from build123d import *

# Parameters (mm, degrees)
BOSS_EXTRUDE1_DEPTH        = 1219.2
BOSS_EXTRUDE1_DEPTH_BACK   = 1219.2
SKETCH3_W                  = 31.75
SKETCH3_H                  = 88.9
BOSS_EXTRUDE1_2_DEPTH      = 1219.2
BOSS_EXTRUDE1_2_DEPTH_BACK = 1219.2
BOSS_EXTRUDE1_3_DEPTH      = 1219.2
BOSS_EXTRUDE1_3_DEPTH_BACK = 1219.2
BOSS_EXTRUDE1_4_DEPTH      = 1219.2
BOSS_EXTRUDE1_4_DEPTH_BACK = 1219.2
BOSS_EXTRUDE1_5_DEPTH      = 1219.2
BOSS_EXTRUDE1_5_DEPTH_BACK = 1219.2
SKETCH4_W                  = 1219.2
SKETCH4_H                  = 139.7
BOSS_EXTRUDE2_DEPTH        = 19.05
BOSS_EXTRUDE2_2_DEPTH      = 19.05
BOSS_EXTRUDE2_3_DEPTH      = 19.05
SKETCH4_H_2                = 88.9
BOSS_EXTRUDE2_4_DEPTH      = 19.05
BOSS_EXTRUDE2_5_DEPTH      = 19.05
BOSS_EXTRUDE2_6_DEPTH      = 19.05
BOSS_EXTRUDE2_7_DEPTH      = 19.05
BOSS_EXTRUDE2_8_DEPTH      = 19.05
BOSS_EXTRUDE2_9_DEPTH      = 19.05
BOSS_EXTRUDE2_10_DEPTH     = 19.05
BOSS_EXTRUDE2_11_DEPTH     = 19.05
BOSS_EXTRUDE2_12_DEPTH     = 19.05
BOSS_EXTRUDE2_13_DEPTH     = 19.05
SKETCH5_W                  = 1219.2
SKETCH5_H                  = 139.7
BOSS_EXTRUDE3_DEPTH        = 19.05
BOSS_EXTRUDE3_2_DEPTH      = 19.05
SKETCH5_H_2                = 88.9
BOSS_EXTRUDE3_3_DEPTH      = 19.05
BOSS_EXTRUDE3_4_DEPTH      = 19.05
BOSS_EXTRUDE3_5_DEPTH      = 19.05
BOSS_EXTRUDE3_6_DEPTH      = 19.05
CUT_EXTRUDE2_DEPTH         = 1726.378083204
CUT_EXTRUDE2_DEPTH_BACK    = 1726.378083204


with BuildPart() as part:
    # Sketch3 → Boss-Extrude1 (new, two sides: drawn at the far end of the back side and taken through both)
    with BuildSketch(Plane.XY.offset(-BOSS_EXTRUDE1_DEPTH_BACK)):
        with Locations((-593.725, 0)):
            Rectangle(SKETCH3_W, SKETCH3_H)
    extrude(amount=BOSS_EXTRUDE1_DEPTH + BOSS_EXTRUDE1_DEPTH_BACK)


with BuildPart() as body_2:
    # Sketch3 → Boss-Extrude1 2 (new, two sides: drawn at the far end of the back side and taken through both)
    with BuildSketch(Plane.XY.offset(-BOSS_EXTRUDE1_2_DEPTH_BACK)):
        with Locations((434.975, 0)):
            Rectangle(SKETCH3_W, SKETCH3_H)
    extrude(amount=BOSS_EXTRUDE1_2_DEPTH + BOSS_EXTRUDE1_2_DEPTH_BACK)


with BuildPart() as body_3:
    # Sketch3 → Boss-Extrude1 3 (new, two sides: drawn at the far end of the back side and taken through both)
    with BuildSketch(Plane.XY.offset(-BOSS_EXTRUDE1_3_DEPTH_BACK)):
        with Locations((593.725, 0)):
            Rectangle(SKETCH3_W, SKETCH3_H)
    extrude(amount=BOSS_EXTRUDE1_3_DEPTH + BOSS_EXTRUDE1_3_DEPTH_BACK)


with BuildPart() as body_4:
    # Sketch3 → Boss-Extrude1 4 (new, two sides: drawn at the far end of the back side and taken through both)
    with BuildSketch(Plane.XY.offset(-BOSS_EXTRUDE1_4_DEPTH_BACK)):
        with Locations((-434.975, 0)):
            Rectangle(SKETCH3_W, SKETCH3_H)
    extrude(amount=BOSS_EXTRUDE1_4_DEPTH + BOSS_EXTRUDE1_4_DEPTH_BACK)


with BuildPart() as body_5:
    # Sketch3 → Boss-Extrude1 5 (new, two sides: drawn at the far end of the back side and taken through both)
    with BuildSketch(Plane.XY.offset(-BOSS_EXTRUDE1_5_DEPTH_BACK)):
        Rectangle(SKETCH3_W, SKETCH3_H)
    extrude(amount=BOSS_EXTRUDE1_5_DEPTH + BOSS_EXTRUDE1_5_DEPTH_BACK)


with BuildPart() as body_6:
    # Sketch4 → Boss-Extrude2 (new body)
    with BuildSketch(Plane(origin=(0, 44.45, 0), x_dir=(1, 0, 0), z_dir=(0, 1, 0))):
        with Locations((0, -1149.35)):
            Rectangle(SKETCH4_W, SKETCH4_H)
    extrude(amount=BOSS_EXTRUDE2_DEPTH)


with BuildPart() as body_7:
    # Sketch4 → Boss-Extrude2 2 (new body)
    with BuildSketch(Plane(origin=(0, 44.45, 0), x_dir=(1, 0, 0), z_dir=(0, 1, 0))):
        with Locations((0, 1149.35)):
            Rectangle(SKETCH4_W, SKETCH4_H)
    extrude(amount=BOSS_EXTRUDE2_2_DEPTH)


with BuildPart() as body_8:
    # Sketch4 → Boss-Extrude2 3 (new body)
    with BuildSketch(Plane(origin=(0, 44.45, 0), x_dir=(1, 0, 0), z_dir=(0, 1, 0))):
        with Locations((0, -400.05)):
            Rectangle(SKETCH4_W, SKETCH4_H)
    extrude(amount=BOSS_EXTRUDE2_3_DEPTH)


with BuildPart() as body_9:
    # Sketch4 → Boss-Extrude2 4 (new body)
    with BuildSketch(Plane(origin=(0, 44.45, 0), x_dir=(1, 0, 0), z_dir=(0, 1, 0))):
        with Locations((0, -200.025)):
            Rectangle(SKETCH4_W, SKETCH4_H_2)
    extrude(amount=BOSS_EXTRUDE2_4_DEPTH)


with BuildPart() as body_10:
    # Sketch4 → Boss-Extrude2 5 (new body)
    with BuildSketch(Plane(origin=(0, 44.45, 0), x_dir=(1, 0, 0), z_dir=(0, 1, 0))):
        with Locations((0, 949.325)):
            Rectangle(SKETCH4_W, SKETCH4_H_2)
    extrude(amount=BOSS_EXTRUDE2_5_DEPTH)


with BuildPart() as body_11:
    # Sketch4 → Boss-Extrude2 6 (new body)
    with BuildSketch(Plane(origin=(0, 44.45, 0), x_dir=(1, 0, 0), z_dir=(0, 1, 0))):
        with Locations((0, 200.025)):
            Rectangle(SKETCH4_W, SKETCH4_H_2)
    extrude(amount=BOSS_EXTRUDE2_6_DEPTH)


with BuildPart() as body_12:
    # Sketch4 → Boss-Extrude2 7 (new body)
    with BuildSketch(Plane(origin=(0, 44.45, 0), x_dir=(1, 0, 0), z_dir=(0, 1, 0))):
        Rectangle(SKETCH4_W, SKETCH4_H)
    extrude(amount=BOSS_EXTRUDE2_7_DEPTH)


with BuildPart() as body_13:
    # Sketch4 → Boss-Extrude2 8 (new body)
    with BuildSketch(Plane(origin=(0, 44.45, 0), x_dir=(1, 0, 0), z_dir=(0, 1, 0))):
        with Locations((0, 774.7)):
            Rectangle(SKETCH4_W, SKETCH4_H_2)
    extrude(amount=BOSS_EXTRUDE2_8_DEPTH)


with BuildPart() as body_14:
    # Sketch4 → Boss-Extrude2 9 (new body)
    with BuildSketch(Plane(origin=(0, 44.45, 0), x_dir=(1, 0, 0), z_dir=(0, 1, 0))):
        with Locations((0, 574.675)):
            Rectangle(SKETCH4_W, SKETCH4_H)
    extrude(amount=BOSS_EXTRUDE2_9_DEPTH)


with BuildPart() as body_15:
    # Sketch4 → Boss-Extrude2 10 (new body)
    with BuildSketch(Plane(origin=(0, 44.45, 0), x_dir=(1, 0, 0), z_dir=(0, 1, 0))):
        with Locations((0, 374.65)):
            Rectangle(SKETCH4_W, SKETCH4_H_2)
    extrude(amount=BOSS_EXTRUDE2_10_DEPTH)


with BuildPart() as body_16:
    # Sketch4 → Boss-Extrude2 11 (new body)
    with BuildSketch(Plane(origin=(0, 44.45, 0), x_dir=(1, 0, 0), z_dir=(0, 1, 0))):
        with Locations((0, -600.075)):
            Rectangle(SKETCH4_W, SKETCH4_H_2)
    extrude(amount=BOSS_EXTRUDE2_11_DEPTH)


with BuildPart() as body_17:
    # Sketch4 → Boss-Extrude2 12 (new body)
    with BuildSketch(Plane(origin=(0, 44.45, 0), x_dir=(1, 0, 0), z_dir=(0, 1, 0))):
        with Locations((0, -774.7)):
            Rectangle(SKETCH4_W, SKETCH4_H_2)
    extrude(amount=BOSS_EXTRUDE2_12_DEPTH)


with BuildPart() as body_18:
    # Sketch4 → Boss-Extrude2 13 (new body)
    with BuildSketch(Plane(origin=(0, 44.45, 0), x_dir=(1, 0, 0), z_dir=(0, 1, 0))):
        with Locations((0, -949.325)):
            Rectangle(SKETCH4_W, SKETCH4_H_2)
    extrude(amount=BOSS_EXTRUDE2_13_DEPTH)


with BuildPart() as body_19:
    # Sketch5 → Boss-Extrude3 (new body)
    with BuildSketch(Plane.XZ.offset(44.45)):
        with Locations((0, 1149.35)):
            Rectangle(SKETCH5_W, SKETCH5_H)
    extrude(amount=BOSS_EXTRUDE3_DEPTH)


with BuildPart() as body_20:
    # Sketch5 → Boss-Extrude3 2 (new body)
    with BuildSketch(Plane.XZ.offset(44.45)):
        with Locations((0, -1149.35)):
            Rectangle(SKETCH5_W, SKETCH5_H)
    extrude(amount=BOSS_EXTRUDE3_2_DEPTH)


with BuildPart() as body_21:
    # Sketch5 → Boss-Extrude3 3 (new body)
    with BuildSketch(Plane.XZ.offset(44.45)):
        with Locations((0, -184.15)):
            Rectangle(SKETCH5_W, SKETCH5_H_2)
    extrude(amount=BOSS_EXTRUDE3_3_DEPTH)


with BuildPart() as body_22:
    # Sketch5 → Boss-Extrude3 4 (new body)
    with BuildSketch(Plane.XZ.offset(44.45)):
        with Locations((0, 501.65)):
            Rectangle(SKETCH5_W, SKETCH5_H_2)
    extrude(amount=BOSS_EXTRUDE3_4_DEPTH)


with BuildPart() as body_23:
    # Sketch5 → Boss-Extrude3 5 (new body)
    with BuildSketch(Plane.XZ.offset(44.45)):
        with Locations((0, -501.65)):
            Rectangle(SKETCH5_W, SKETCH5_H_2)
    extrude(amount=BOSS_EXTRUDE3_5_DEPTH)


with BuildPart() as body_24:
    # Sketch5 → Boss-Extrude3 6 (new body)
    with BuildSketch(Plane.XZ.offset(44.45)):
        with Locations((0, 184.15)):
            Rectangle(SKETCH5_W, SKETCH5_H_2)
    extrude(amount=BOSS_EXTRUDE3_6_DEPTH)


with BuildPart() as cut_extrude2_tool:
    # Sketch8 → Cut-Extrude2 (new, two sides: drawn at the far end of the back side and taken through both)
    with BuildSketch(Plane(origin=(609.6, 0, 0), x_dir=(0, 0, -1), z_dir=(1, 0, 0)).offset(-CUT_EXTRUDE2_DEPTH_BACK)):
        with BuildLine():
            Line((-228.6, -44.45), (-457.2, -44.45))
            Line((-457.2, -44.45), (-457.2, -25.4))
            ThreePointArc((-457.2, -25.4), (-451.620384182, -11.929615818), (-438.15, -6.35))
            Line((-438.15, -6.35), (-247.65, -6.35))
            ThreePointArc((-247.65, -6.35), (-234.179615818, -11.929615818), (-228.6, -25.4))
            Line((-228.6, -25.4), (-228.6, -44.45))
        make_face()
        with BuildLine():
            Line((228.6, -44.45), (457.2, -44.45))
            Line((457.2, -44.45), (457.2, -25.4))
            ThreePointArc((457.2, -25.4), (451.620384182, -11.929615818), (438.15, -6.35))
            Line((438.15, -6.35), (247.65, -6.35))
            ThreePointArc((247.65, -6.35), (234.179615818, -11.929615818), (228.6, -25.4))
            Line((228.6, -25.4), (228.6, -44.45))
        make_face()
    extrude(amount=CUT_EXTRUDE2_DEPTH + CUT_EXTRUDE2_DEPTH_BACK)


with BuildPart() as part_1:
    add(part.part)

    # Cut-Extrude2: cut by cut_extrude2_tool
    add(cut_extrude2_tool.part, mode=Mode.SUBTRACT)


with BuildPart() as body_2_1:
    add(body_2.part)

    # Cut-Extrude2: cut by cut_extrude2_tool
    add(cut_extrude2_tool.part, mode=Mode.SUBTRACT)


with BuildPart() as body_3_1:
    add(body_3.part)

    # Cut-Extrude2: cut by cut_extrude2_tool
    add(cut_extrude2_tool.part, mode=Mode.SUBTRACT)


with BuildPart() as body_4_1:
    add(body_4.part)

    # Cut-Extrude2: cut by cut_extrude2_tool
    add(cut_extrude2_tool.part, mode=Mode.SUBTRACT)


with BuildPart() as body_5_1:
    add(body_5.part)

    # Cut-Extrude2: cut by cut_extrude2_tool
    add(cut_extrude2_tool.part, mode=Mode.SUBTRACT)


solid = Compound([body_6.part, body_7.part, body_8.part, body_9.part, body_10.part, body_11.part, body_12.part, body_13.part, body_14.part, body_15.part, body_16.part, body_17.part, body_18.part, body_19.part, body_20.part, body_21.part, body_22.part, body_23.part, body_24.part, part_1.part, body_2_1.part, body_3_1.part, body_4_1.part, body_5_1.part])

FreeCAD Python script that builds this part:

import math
import FreeCAD as App
import Part
import Sketcher

V = App.Vector
Q = App.Units.Quantity

doc = App.newDocument("Part")
body = doc.addObject("PartDesign::Body", "Body")

sketch1 = body.newObject("Sketcher::SketchObject", "Sketch")
sketch1.AttachmentSupport = (doc.getObject("XY_Plane"), [""])
sketch1.MapMode = "FlatFace"
sketch1.addGeometry(Part.LineSegment(V(-610, 44, 0), V(-610, -44, 0)), False)
sketch1.addGeometry(Part.LineSegment(V(-610, -44, 0), V(-578, -44, 0)), False)
sketch1.addGeometry(Part.LineSegment(V(-578, -44, 0), V(-578, 44, 0)), False)
sketch1.addGeometry(Part.LineSegment(V(-578, 44, 0), V(-610, 44, 0)), False)
sketch1.addConstraint(Sketcher.Constraint("Coincident", 0, 2, 1, 1))
sketch1.addConstraint(Sketcher.Constraint("Coincident", 1, 2, 2, 1))
sketch1.addConstraint(Sketcher.Constraint("Coincident", 2, 2, 3, 1))
sketch1.addConstraint(Sketcher.Constraint("Coincident", 3, 2, 0, 1))
sketch1.addConstraint(Sketcher.Constraint("Vertical", 0))
sketch1.addConstraint(Sketcher.Constraint("Horizontal", 1))
sketch1.addConstraint(Sketcher.Constraint("Vertical", 2))
sketch1.addConstraint(Sketcher.Constraint("Horizontal", 3))
sketch1.addConstraint(Sketcher.Constraint("DistanceY", 0, 2, 0, 1, Q("3.5 in")))
sketch1.addConstraint(Sketcher.Constraint("DistanceX", 0, 2, -1, 1, Q("24 in")))
sketch1.addConstraint(Sketcher.Constraint("DistanceX", 1, 1, 1, 2, Q("1.25 in")))
sketch1.addConstraint(Sketcher.Constraint("DistanceY", 0, 2, -1, 1, Q("1.75 in")))
pad1 = body.newObject("PartDesign::Pad", "Pad")
pad1.Profile = sketch1
pad1.Type = "TwoLengths"
pad1.Length = Q("48 in")
pad1.Length2 = Q("48 in")
body2 = doc.addObject("PartDesign::Body", "Body001")

sketch2 = body2.newObject("Sketcher::SketchObject", "Sketch001")
sketch2.AttachmentSupport = (doc.getObject("XY_Plane001"), [""])
sketch2.MapMode = "FlatFace"
sketch2.addGeometry(Part.LineSegment(V(419, 44, 0), V(419, -44, 0)), False)
sketch2.addGeometry(Part.LineSegment(V(419, -44, 0), V(451, -44, 0)), False)
sketch2.addGeometry(Part.LineSegment(V(451, -44, 0), V(451, 44, 0)), False)
sketch2.addGeometry(Part.LineSegment(V(451, 44, 0), V(419, 44, 0)), False)
sketch2.addConstraint(Sketcher.Constraint("Coincident", 0, 2, 1, 1))
sketch2.addConstraint(Sketcher.Constraint("Coincident", 1, 2, 2, 1))
sketch2.addConstraint(Sketcher.Constraint("Coincident", 2, 2, 3, 1))
sketch2.addConstraint(Sketcher.Constraint("Coincident", 3, 2, 0, 1))
sketch2.addConstraint(Sketcher.Constraint("Vertical", 0))
sketch2.addConstraint(Sketcher.Constraint("Horizontal", 1))
sketch2.addConstraint(Sketcher.Constraint("Vertical", 2))
sketch2.addConstraint(Sketcher.Constraint("Horizontal", 3))
sketch2.addConstraint(Sketcher.Constraint("DistanceY", 0, 2, 0, 1, Q("3.5 in")))
sketch2.addConstraint(Sketcher.Constraint("DistanceX", 1, 1, 1, 2, Q("1.25 in")))
sketch2.addConstraint(Sketcher.Constraint("DistanceX", -1, 1, 0, 2, Q("16.5 in")))
sketch2.addConstraint(Sketcher.Constraint("DistanceY", 0, 2, -1, 1, Q("1.75 in")))
pad2 = body2.newObject("PartDesign::Pad", "Pad001")
pad2.Profile = sketch2
pad2.Type = "TwoLengths"
pad2.Length = Q("48 in")
pad2.Length2 = Q("48 in")
body3 = doc.addObject("PartDesign::Body", "Body002")

sketch3 = body3.newObject("Sketcher::SketchObject", "Sketch002")
sketch3.AttachmentSupport = (doc.getObject("XY_Plane002"), [""])
sketch3.MapMode = "FlatFace"
sketch3.addGeometry(Part.LineSegment(V(578, 44, 0), V(578, -44, 0)), False)
sketch3.addGeometry(Part.LineSegment(V(578, -44, 0), V(610, -44, 0)), False)
sketch3.addGeometry(Part.LineSegment(V(610, -44, 0), V(610, 44, 0)), False)
sketch3.addGeometry(Part.LineSegment(V(610, 44, 0), V(578, 44, 0)), False)
sketch3.addConstraint(Sketcher.Constraint("Coincident", 0, 2, 1, 1))
sketch3.addConstraint(Sketcher.Constraint("Coincident", 1, 2, 2, 1))
sketch3.addConstraint(Sketcher.Constraint("Coincident", 2, 2, 3, 1))
sketch3.addConstraint(Sketcher.Constraint("Coincident", 3, 2, 0, 1))
sketch3.addConstraint(Sketcher.Constraint("Vertical", 0))
sketch3.addConstraint(Sketcher.Constraint("Horizontal", 1))
sketch3.addConstraint(Sketcher.Constraint("Vertical", 2))
sketch3.addConstraint(Sketcher.Constraint("Horizontal", 3))
sketch3.addConstraint(Sketcher.Constraint("DistanceY", 0, 2, 0, 1, Q("3.5 in")))
sketch3.addConstraint(Sketcher.Constraint("DistanceX", -1, 1, 1, 2, Q("24 in")))
sketch3.addConstraint(Sketcher.Constraint("DistanceX", 1, 1, 1, 2, Q("1.25 in")))
sketch3.addConstraint(Sketcher.Constraint("DistanceY", 0, 2, -1, 1, Q("1.75 in")))
pad3 = body3.newObject("PartDesign::Pad", "Pad002")
pad3.Profile = sketch3
pad3.Type = "TwoLengths"
pad3.Length = Q("48 in")
pad3.Length2 = Q("48 in")
body4 = doc.addObject("PartDesign::Body", "Body003")

sketch4 = body4.newObject("Sketcher::SketchObject", "Sketch003")
sketch4.AttachmentSupport = (doc.getObject("XY_Plane003"), [""])
sketch4.MapMode = "FlatFace"
sketch4.addGeometry(Part.LineSegment(V(-451, 44, 0), V(-451, -44, 0)), False)
sketch4.addGeometry(Part.LineSegment(V(-451, -44, 0), V(-419, -44, 0)), False)
sketch4.addGeometry(Part.LineSegment(V(-419, -44, 0), V(-419, 44, 0)), False)
sketch4.addGeometry(Part.LineSegment(V(-419, 44, 0), V(-451, 44, 0)), False)
sketch4.addConstraint(Sketcher.Constraint("Coincident", 0, 2, 1, 1))
sketch4.addConstraint(Sketcher.Constraint("Coincident", 1, 2, 2, 1))
sketch4.addConstraint(Sketcher.Constraint("Coincident", 2, 2, 3, 1))
sketch4.addConstraint(Sketcher.Constraint("Coincident", 3, 2, 0, 1))
sketch4.addConstraint(Sketcher.Constraint("Vertical", 0))
sketch4.addConstraint(Sketcher.Constraint("Horizontal", 1))
sketch4.addConstraint(Sketcher.Constraint("Vertical", 2))
sketch4.addConstraint(Sketcher.Constraint("Horizontal", 3))
sketch4.addConstraint(Sketcher.Constraint("DistanceY", 0, 2, 0, 1, Q("3.5 in")))
sketch4.addConstraint(Sketcher.Constraint("DistanceX", 1, 1, 1, 2, Q("1.25 in")))
sketch4.addConstraint(Sketcher.Constraint("DistanceX", 1, 2, -1, 1, Q("16.5 in")))
sketch4.addConstraint(Sketcher.Constraint("DistanceY", 0, 2, -1, 1, Q("1.75 in")))
pad4 = body4.newObject("PartDesign::Pad", "Pad003")
pad4.Profile = sketch4
pad4.Type = "TwoLengths"
pad4.Length = Q("48 in")
pad4.Length2 = Q("48 in")
body5 = doc.addObject("PartDesign::Body", "Body004")

sketch5 = body5.newObject("Sketcher::SketchObject", "Sketch004")
sketch5.AttachmentSupport = (doc.getObject("XY_Plane004"), [""])
sketch5.MapMode = "FlatFace"
sketch5.addGeometry(Part.LineSegment(V(-16, 44, 0), V(-16, -44, 0)), False)
sketch5.addGeometry(Part.LineSegment(V(-16, -44, 0), V(16, -44, 0)), False)
sketch5.addGeometry(Part.LineSegment(V(16, -44, 0), V(16, 44, 0)), False)
sketch5.addGeometry(Part.LineSegment(V(16, 44, 0), V(-16, 44, 0)), False)
sketch5.addConstraint(Sketcher.Constraint("Coincident", 0, 2, 1, 1))
sketch5.addConstraint(Sketcher.Constraint("Coincident", 1, 2, 2, 1))
sketch5.addConstraint(Sketcher.Constraint("Coincident", 2, 2, 3, 1))
sketch5.addConstraint(Sketcher.Constraint("Coincident", 3, 2, 0, 1))
sketch5.addConstraint(Sketcher.Constraint("Vertical", 0))
sketch5.addConstraint(Sketcher.Constraint("Horizontal", 1))
sketch5.addConstraint(Sketcher.Constraint("Vertical", 2))
sketch5.addConstraint(Sketcher.Constraint("Horizontal", 3))
sketch5.addConstraint(Sketcher.Constraint("Symmetric", 0, 2, 2, 2, -1, 1))
sketch5.addConstraint(Sketcher.Constraint("DistanceY", 0, 2, 0, 1, Q("3.5 in")))
sketch5.addConstraint(Sketcher.Constraint("DistanceX", 1, 1, 1, 2, Q("1.25 in")))
pad5 = body5.newObject("PartDesign::Pad", "Pad004")
pad5.Profile = sketch5
pad5.Type = "TwoLengths"
pad5.Length = Q("48 in")
pad5.Length2 = Q("48 in")
body6 = doc.addObject("PartDesign::Body", "Body005")

sketch6 = body6.newObject("Sketcher::SketchObject", "Sketch005")
sketch6.AttachmentSupport = (doc.getObject("XZ_Plane005"), [""])
sketch6.MapMode = "FlatFace"
sketch6.AttachmentOffset = App.Placement(V(0, 0, -1.75 * 25.4), App.Rotation())
sketch6.addGeometry(Part.LineSegment(V(-610, 1080, 0), V(-610, 1219, 0)), False)
sketch6.addGeometry(Part.LineSegment(V(-610, 1219, 0), V(610, 1219, 0)), False)
sketch6.addGeometry(Part.LineSegment(V(610, 1219, 0), V(610, 1080, 0)), False)
sketch6.addGeometry(Part.LineSegment(V(610, 1080, 0), V(-610, 1080, 0)), False)
sketch6.addConstraint(Sketcher.Constraint("Coincident", 0, 2, 1, 1))
sketch6.addConstraint(Sketcher.Constraint("Coincident", 1, 2, 2, 1))
sketch6.addConstraint(Sketcher.Constraint("Coincident", 2, 2, 3, 1))
sketch6.addConstraint(Sketcher.Constraint("Coincident", 3, 2, 0, 1))
sketch6.addConstraint(Sketcher.Constraint("Vertical", 0))
sketch6.addConstraint(Sketcher.Constraint("Horizontal", 1))
sketch6.addConstraint(Sketcher.Constraint("Vertical", 2))
sketch6.addConstraint(Sketcher.Constraint("Horizontal", 3))
sketch6.addConstraint(Sketcher.Constraint("DistanceX", 1, 1, 1, 2, Q("48 in")))
sketch6.addConstraint(Sketcher.Constraint("DistanceY", 0, 1, 0, 2, Q("5.5 in")))
sketch6.addConstraint(Sketcher.Constraint("DistanceX", 0, 2, -1, 1, Q("24 in")))
sketch6.addConstraint(Sketcher.Constraint("DistanceY", -1, 1, 0, 2, Q("48 in")))
pad6 = body6.newObject("PartDesign::Pad", "Pad005")
pad6.Profile = sketch6
pad6.Length = Q("0.75 in")
pad6.Reversed = True
body7 = doc.addObject("PartDesign::Body", "Body006")

sketch7 = body7.newObject("Sketcher::SketchObject", "Sketch006")
sketch7.AttachmentSupport = (doc.getObject("XZ_Plane006"), [""])
sketch7.MapMode = "FlatFace"
sketch7.AttachmentOffset = App.Placement(V(0, 0, -1.75 * 25.4), App.Rotation())
sketch7.addGeometry(Part.LineSegment(V(-610, -1219, 0), V(-610, -1080, 0)), False)
sketch7.addGeometry(Part.LineSegment(V(-610, -1080, 0), V(610, -1080, 0)), False)
sketch7.addGeometry(Part.LineSegment(V(610, -1080, 0), V(610, -1219, 0)), False)
sketch7.addGeometry(Part.LineSegment(V(610, -1219, 0), V(-610, -1219, 0)), False)
sketch7.addConstraint(Sketcher.Constraint("Coincident", 0, 2, 1, 1))
sketch7.addConstraint(Sketcher.Constraint("Coincident", 1, 2, 2, 1))
sketch7.addConstraint(Sketcher.Constraint("Coincident", 2, 2, 3, 1))
sketch7.addConstraint(Sketcher.Constraint("Coincident", 3, 2, 0, 1))
sketch7.addConstraint(Sketcher.Constraint("Vertical", 0))
sketch7.addConstraint(Sketcher.Constraint("Horizontal", 1))
sketch7.addConstraint(Sketcher.Constraint("Vertical", 2))
sketch7.addConstraint(Sketcher.Constraint("Horizontal", 3))
sketch7.addConstraint(Sketcher.Constraint("DistanceX", 1, 1, 1, 2, Q("48 in")))
sketch7.addConstraint(Sketcher.Constraint("DistanceY", 0, 1, 0, 2, Q("5.5 in")))
sketch7.addConstraint(Sketcher.Constraint("DistanceX", 0, 2, -1, 1, Q("24 in")))
sketch7.addConstraint(Sketcher.Constraint("DistanceY", 2, 2, -1, 1, Q("48 in")))
pad7 = body7.newObject("PartDesign::Pad", "Pad006")
pad7.Profile = sketch7
pad7.Length = Q("0.75 in")
pad7.Reversed = True
body8 = doc.addObject("PartDesign::Body", "Body007")

sketch8 = body8.newObject("Sketcher::SketchObject", "Sketch007")
sketch8.AttachmentSupport = (doc.getObject("XZ_Plane007"), [""])
sketch8.MapMode = "FlatFace"
sketch8.AttachmentOffset = App.Placement(V(0, 0, -1.75 * 25.4), App.Rotation())
sketch8.addGeometry(Part.LineSegment(V(-610, 330, 0), V(-610, 470, 0)), False)
sketch8.addGeometry(Part.LineSegment(V(-610, 470, 0), V(610, 470, 0)), False)
sketch8.addGeometry(Part.LineSegment(V(610, 470, 0), V(610, 330, 0)), False)
sketch8.addGeometry(Part.LineSegment(V(610, 330, 0), V(-610, 330, 0)), False)
sketch8.addConstraint(Sketcher.Constraint("Coincident", 0, 2, 1, 1))
sketch8.addConstraint(Sketcher.Constraint("Coincident", 1, 2, 2, 1))
sketch8.addConstraint(Sketcher.Constraint("Coincident", 2, 2, 3, 1))
sketch8.addConstraint(Sketcher.Constraint("Coincident", 3, 2, 0, 1))
sketch8.addConstraint(Sketcher.Constraint("Vertical", 0))
sketch8.addConstraint(Sketcher.Constraint("Horizontal", 1))
sketch8.addConstraint(Sketcher.Constraint("Vertical", 2))
sketch8.addConstraint(Sketcher.Constraint("Horizontal", 3))
sketch8.addConstraint(Sketcher.Constraint("DistanceX", 1, 1, 1, 2, Q("48 in")))
sketch8.addConstraint(Sketcher.Constraint("DistanceY", 0, 1, 0, 2, Q("5.5 in")))
sketch8.addConstraint(Sketcher.Constraint("DistanceX", 0, 2, -1, 1, Q("24 in")))
sketch8.addConstraint(Sketcher.Constraint("DistanceY", -1, 1, 2, 2, Q("13 in")))
pad8 = body8.newObject("PartDesign::Pad", "Pad007")
pad8.Profile = sketch8
pad8.Length = Q("0.75 in")
pad8.Reversed = True
body9 = doc.addObject("PartDesign::Body", "Body008")

sketch9 = body9.newObject("Sketcher::SketchObject", "Sketch008")
sketch9.AttachmentSupport = (doc.getObject("XZ_Plane008"), [""])
sketch9.MapMode = "FlatFace"
sketch9.AttachmentOffset = App.Placement(V(0, 0, -1.75 * 25.4), App.Rotation())
sketch9.addGeometry(Part.LineSegment(V(-610, 156, 0), V(-610, 244, 0)), False)
sketch9.addGeometry(Part.LineSegment(V(-610, 244, 0), V(610, 244, 0)), False)
sketch9.addGeometry(Part.LineSegment(V(610, 244, 0), V(610, 156, 0)), False)
sketch9.addGeometry(Part.LineSegment(V(610, 156, 0), V(-610, 156, 0)), False)
sketch9.addConstraint(Sketcher.Constraint("Coincident", 0, 2, 1, 1))
sketch9.addConstraint(Sketcher.Constraint("Coincident", 1, 2, 2, 1))
sketch9.addConstraint(Sketcher.Constraint("Coincident", 2, 2, 3, 1))
sketch9.addConstraint(Sketcher.Constraint("Coincident", 3, 2, 0, 1))
sketch9.addConstraint(Sketcher.Constraint("Vertical", 0))
sketch9.addConstraint(Sketcher.Constraint("Horizontal", 1))
sketch9.addConstraint(Sketcher.Constraint("Vertical", 2))
sketch9.addConstraint(Sketcher.Constraint("Horizontal", 3))
sketch9.addConstraint(Sketcher.Constraint("DistanceX", 1, 1, 1, 2, Q("48 in")))
sketch9.addConstraint(Sketcher.Constraint("DistanceY", 0, 1, 0, 2, Q("3.5 in")))
sketch9.addConstraint(Sketcher.Constraint("DistanceX", 0, 2, -1, 1, Q("24 in")))
sketch9.addConstraint(Sketcher.Constraint("DistanceY", -1, 1, 0, 2, Q("9.625 in")))
pad9 = body9.newObject("PartDesign::Pad", "Pad008")
pad9.Profile = sketch9
pad9.Length = Q("0.75 in")
pad9.Reversed = True
body10 = doc.addObject("PartDesign::Body", "Body009")

sketch10 = body10.newObject("Sketcher::SketchObject", "Sketch009")
sketch10.AttachmentSupport = (doc.getObject("XZ_Plane009"), [""])
sketch10.MapMode = "FlatFace"
sketch10.AttachmentOffset = App.Placement(V(0, 0, -1.75 * 25.4), App.Rotation())
sketch10.addGeometry(Part.LineSegment(V(-610, -994, 0), V(-610, -905, 0)), False)
sketch10.addGeometry(Part.LineSegment(V(-610, -905, 0), V(610, -905, 0)), False)
sketch10.addGeometry(Part.LineSegment(V(610, -905, 0), V(610, -994, 0)), False)
sketch10.addGeometry(Part.LineSegment(V(610, -994, 0), V(-610, -994, 0)), False)
sketch10.addConstraint(Sketcher.Constraint("Coincident", 0, 2, 1, 1))
sketch10.addConstraint(Sketcher.Constraint("Coincident", 1, 2, 2, 1))
sketch10.addConstraint(Sketcher.Constraint("Coincident", 2, 2, 3, 1))
sketch10.addConstraint(Sketcher.Constraint("Coincident", 3, 2, 0, 1))
sketch10.addConstraint(Sketcher.Constraint("Vertical", 0))
sketch10.addConstraint(Sketcher.Constraint("Horizontal", 1))
sketch10.addConstraint(Sketcher.Constraint("Vertical", 2))
sketch10.addConstraint(Sketcher.Constraint("Horizontal", 3))
sketch10.addConstraint(Sketcher.Constraint("DistanceX", 1, 1, 1, 2, Q("48 in")))
sketch10.addConstraint(Sketcher.Constraint("DistanceY", 0, 1, 0, 2, Q("3.5 in")))
sketch10.addConstraint(Sketcher.Constraint("DistanceX", 0, 2, -1, 1, Q("24 in")))
sketch10.addConstraint(Sketcher.Constraint("DistanceY", 0, 2, -1, 1, Q("35.625 in")))
pad10 = body10.newObject("PartDesign::Pad", "Pad009")
pad10.Profile = sketch10
pad10.Length = Q("0.75 in")
pad10.Reversed = True
body11 = doc.addObject("PartDesign::Body", "Body010")

sketch11 = body11.newObject("Sketcher::SketchObject", "Sketch010")
sketch11.AttachmentSupport = (doc.getObject("XZ_Plane010"), [""])
sketch11.MapMode = "FlatFace"
sketch11.AttachmentOffset = App.Placement(V(0, 0, -1.75 * 25.4), App.Rotation())
sketch11.addGeometry(Part.LineSegment(V(-610, -244, 0), V(-610, -156, 0)), False)
sketch11.addGeometry(Part.LineSegment(V(-610, -156, 0), V(610, -156, 0)), False)
sketch11.addGeometry(Part.LineSegment(V(610, -156, 0), V(610, -244, 0)), False)
sketch11.addGeometry(Part.LineSegment(V(610, -244, 0), V(-610, -244, 0)), False)
sketch11.addConstraint(Sketcher.Constraint("Coincident", 0, 2, 1, 1))
sketch11.addConstraint(Sketcher.Constraint("Coincident", 1, 2, 2, 1))
sketch11.addConstraint(Sketcher.Constraint("Coincident", 2, 2, 3, 1))
sketch11.addConstraint(Sketcher.Constraint("Coincident", 3, 2, 0, 1))
sketch11.addConstraint(Sketcher.Constraint("Vertical", 0))
sketch11.addConstraint(Sketcher.Constraint("Horizontal", 1))
sketch11.addConstraint(Sketcher.Constraint("Vertical", 2))
sketch11.addConstraint(Sketcher.Constraint("Horizontal", 3))
sketch11.addConstraint(Sketcher.Constraint("DistanceX", 1, 1, 1, 2, Q("48 in")))
sketch11.addConstraint(Sketcher.Constraint("DistanceY", 0, 1, 0, 2, Q("3.5 in")))
sketch11.addConstraint(Sketcher.Constraint("DistanceX", 0, 2, -1, 1, Q("24 in")))
sketch11.addConstraint(Sketcher.Constraint("DistanceY", 0, 2, -1, 1, Q("6.125 in")))
pad11 = body11.newObject("PartDesign::Pad", "Pad010")
pad11.Profile = sketch11
pad11.Length = Q("0.75 in")
pad11.Reversed = True
body12 = doc.addObject("PartDesign::Body", "Body011")

sketch12 = body12.newObject("Sketcher::SketchObject", "Sketch011")
sketch12.AttachmentSupport = (doc.getObject("XZ_Plane011"), [""])
sketch12.MapMode = "FlatFace"
sketch12.AttachmentOffset = App.Placement(V(0, 0, -1.75 * 25.4), App.Rotation())
sketch12.addGeometry(Part.LineSegment(V(-610, -70, 0), V(-610, 70, 0)), False)
sketch12.addGeometry(Part.LineSegment(V(-610, 70, 0), V(610, 70, 0)), False)
sketch12.addGeometry(Part.LineSegment(V(610, 70, 0), V(610, -70, 0)), False)
sketch12.addGeometry(Part.LineSegment(V(610, -70, 0), V(-610, -70, 0)), False)
sketch12.addConstraint(Sketcher.Constraint("Coincident", 0, 2, 1, 1))
sketch12.addConstraint(Sketcher.Constraint("Coincident", 1, 2, 2, 1))
sketch12.addConstraint(Sketcher.Constraint("Coincident", 2, 2, 3, 1))
sketch12.addConstraint(Sketcher.Constraint("Coincident", 3, 2, 0, 1))
sketch12.addConstraint(Sketcher.Constraint("Vertical", 0))
sketch12.addConstraint(Sketcher.Constraint("Horizontal", 1))
sketch12.addConstraint(Sketcher.Constraint("Vertical", 2))
sketch12.addConstraint(Sketcher.Constraint("Horizontal", 3))
sketch12.addConstraint(Sketcher.Constraint("Symmetric", 0, 2, 2, 2, -1, 1))
sketch12.addConstraint(Sketcher.Constraint("DistanceX", 1, 1, 1, 2, Q("48 in")))
sketch12.addConstraint(Sketcher.Constraint("DistanceY", 0, 1, 0, 2, Q("5.5 in")))
pad12 = body12.newObject("PartDesign::Pad", "Pad011")
pad12.Profile = sketch12
pad12.Length = Q("0.75 in")
pad12.Reversed = True
body13 = doc.addObject("PartDesign::Body", "Body012")

sketch13 = body13.newObject("Sketcher::SketchObject", "Sketch012")
sketch13.AttachmentSupport = (doc.getObject("XZ_Plane012"), [""])
sketch13.MapMode = "FlatFace"
sketch13.AttachmentOffset = App.Placement(V(0, 0, -1.75 * 25.4), App.Rotation())
sketch13.addGeometry(Part.LineSegment(V(-610, -819, 0), V(-610, -730, 0)), False)
sketch13.addGeometry(Part.LineSegment(V(-610, -730, 0), V(610, -730, 0)), False)
sketch13.addGeometry(Part.LineSegment(V(610, -730, 0), V(610, -819, 0)), False)
sketch13.addGeometry(Part.LineSegment(V(610, -819, 0), V(-610, -819, 0)), False)
sketch13.addConstraint(Sketcher.Constraint("Coincident", 0, 2, 1, 1))
sketch13.addConstraint(Sketcher.Constraint("Coincident", 1, 2, 2, 1))
sketch13.addConstraint(Sketcher.Constraint("Coincident", 2, 2, 3, 1))
sketch13.addConstraint(Sketcher.Constraint("Coincident", 3, 2, 0, 1))
sketch13.addConstraint(Sketcher.Constraint("Vertical", 0))
sketch13.addConstraint(Sketcher.Constraint("Horizontal", 1))
sketch13.addConstraint(Sketcher.Constraint("Vertical", 2))
sketch13.addConstraint(Sketcher.Constraint("Horizontal", 3))
sketch13.addConstraint(Sketcher.Constraint("DistanceX", 1, 1, 1, 2, Q("48 in")))
sketch13.addConstraint(Sketcher.Constraint("DistanceY", 0, 1, 0, 2, Q("3.5 in")))
sketch13.addConstraint(Sketcher.Constraint("DistanceX", 0, 2, -1, 1, Q("24 in")))
sketch13.addConstraint(Sketcher.Constraint("DistanceY", 0, 2, -1, 1, Q("28.75 in")))
pad13 = body13.newObject("PartDesign::Pad", "Pad012")
pad13.Profile = sketch13
pad13.Length = Q("0.75 in")
pad13.Reversed = True
body14 = doc.addObject("PartDesign::Body", "Body013")

sketch14 = body14.newObject("Sketcher::SketchObject", "Sketch013")
sketch14.AttachmentSupport = (doc.getObject("XZ_Plane013"), [""])
sketch14.MapMode = "FlatFace"
sketch14.AttachmentOffset = App.Placement(V(0, 0, -1.75 * 25.4), App.Rotation())
sketch14.addGeometry(Part.LineSegment(V(-610, -645, 0), V(-610, -505, 0)), False)
sketch14.addGeometry(Part.LineSegment(V(-610, -505, 0), V(610, -505, 0)), False)
sketch14.addGeometry(Part.LineSegment(V(610, -505, 0), V(610, -645, 0)), False)
sketch14.addGeometry(Part.LineSegment(V(610, -645, 0), V(-610, -645, 0)), False)
sketch14.addConstraint(Sketcher.Constraint("Coincident", 0, 2, 1, 1))
sketch14.addConstraint(Sketcher.Constraint("Coincident", 1, 2, 2, 1))
sketch14.addConstraint(Sketcher.Constraint("Coincident", 2, 2, 3, 1))
sketch14.addConstraint(Sketcher.Constraint("Coincident", 3, 2, 0, 1))
sketch14.addConstraint(Sketcher.Constraint("Vertical", 0))
sketch14.addConstraint(Sketcher.Constraint("Horizontal", 1))
sketch14.addConstraint(Sketcher.Constraint("Vertical", 2))
sketch14.addConstraint(Sketcher.Constraint("Horizontal", 3))
sketch14.addConstraint(Sketcher.Constraint("DistanceX", 1, 1, 1, 2, Q("48 in")))
sketch14.addConstraint(Sketcher.Constraint("DistanceY", 0, 1, 0, 2, Q("5.5 in")))
sketch14.addConstraint(Sketcher.Constraint("DistanceX", 0, 2, -1, 1, Q("24 in")))
sketch14.addConstraint(Sketcher.Constraint("DistanceY", 0, 2, -1, 1, Q("19.875 in")))
pad14 = body14.newObject("PartDesign::Pad", "Pad013")
pad14.Profile = sketch14
pad14.Length = Q("0.75 in")
pad14.Reversed = True
body15 = doc.addObject("PartDesign::Body", "Body014")

sketch15 = body15.newObject("Sketcher::SketchObject", "Sketch014")
sketch15.AttachmentSupport = (doc.getObject("XZ_Plane014"), [""])
sketch15.MapMode = "FlatFace"
sketch15.AttachmentOffset = App.Placement(V(0, 0, -1.75 * 25.4), App.Rotation())
sketch15.addGeometry(Part.LineSegment(V(-610, -419, 0), V(-610, -330, 0)), False)
sketch15.addGeometry(Part.LineSegment(V(-610, -330, 0), V(610, -330, 0)), False)
sketch15.addGeometry(Part.LineSegment(V(610, -330, 0), V(610, -419, 0)), False)
sketch15.addGeometry(Part.LineSegment(V(610, -419, 0), V(-610, -419, 0)), False)
sketch15.addConstraint(Sketcher.Constraint("Coincident", 0, 2, 1, 1))
sketch15.addConstraint(Sketcher.Constraint("Coincident", 1, 2, 2, 1))
sketch15.addConstraint(Sketcher.Constraint("Coincident", 2, 2, 3, 1))
sketch15.addConstraint(Sketcher.Constraint("Coincident", 3, 2, 0, 1))
sketch15.addConstraint(Sketcher.Constraint("Vertical", 0))
sketch15.addConstraint(Sketcher.Constraint("Horizontal", 1))
sketch15.addConstraint(Sketcher.Constraint("Vertical", 2))
sketch15.addConstraint(Sketcher.Constraint("Horizontal", 3))
sketch15.addConstraint(Sketcher.Constraint("DistanceX", 1, 1, 1, 2, Q("48 in")))
sketch15.addConstraint(Sketcher.Constraint("DistanceY", 0, 1, 0, 2, Q("3.5 in")))
sketch15.addConstraint(Sketcher.Constraint("DistanceX", 0, 2, -1, 1, Q("24 in")))
sketch15.addConstraint(Sketcher.Constraint("DistanceY", 0, 2, -1, 1, Q("13 in")))
pad15 = body15.newObject("PartDesign::Pad", "Pad014")
pad15.Profile = sketch15
pad15.Length = Q("0.75 in")
pad15.Reversed = True
body16 = doc.addObject("PartDesign::Body", "Body015")

sketch16 = body16.newObject("Sketcher::SketchObject", "Sketch015")
sketch16.AttachmentSupport = (doc.getObject("XZ_Plane015"), [""])
sketch16.MapMode = "FlatFace"
sketch16.AttachmentOffset = App.Placement(V(0, 0, -1.75 * 25.4), App.Rotation())
sketch16.addGeometry(Part.LineSegment(V(-610, 556, 0), V(-610, 645, 0)), False)
sketch16.addGeometry(Part.LineSegment(V(-610, 645, 0), V(610, 645, 0)), False)
sketch16.addGeometry(Part.LineSegment(V(610, 645, 0), V(610, 556, 0)), False)
sketch16.addGeometry(Part.LineSegment(V(610, 556, 0), V(-610, 556, 0)), False)
sketch16.addConstraint(Sketcher.Constraint("Coincident", 0, 2, 1, 1))
sketch16.addConstraint(Sketcher.Constraint("Coincident", 1, 2, 2, 1))
sketch16.addConstraint(Sketcher.Constraint("Coincident", 2, 2, 3, 1))
sketch16.addConstraint(Sketcher.Constraint("Coincident", 3, 2, 0, 1))
sketch16.addConstraint(Sketcher.Constraint("Vertical", 0))
sketch16.addConstraint(Sketcher.Constraint("Horizontal", 1))
sketch16.addConstraint(Sketcher.Constraint("Vertical", 2))
sketch16.addConstraint(Sketcher.Constraint("Horizontal", 3))
sketch16.addConstraint(Sketcher.Constraint("DistanceX", 1, 1, 1, 2, Q("48 in")))
sketch16.addConstraint(Sketcher.Constraint("DistanceY", 0, 1, 0, 2, Q("3.5 in")))
sketch16.addConstraint(Sketcher.Constraint("DistanceX", 0, 2, -1, 1, Q("24 in")))
sketch16.addConstraint(Sketcher.Constraint("DistanceY", -1, 1, 0, 2, Q("25.375 in")))
pad16 = body16.newObject("PartDesign::Pad", "Pad015")
pad16.Profile = sketch16
pad16.Length = Q("0.75 in")
pad16.Reversed = True
body17 = doc.addObject("PartDesign::Body", "Body016")

sketch17 = body17.newObject("Sketcher::SketchObject", "Sketch016")
sketch17.AttachmentSupport = (doc.getObject("XZ_Plane016"), [""])
sketch17.MapMode = "FlatFace"
sketch17.AttachmentOffset = App.Placement(V(0, 0, -1.75 * 25.4), App.Rotation())
sketch17.addGeometry(Part.LineSegment(V(-610, 730, 0), V(-610, 819, 0)), False)
sketch17.addGeometry(Part.LineSegment(V(-610, 819, 0), V(610, 819, 0)), False)
sketch17.addGeometry(Part.LineSegment(V(610, 819, 0), V(610, 730, 0)), False)
sketch17.addGeometry(Part.LineSegment(V(610, 730, 0), V(-610, 730, 0)), False)
sketch17.addConstraint(Sketcher.Constraint("Coincident", 0, 2, 1, 1))
sketch17.addConstraint(Sketcher.Constraint("Coincident", 1, 2, 2, 1))
sketch17.addConstraint(Sketcher.Constraint("Coincident", 2, 2, 3, 1))
sketch17.addConstraint(Sketcher.Constraint("Coincident", 3, 2, 0, 1))
sketch17.addConstraint(Sketcher.Constraint("Vertical", 0))
sketch17.addConstraint(Sketcher.Constraint("Horizontal", 1))
sketch17.addConstraint(Sketcher.Constraint("Vertical", 2))
sketch17.addConstraint(Sketcher.Constraint("Horizontal", 3))
sketch17.addConstraint(Sketcher.Constraint("DistanceX", 1, 1, 1, 2, Q("48 in")))
sketch17.addConstraint(Sketcher.Constraint("DistanceY", 0, 1, 0, 2, Q("3.5 in")))
sketch17.addConstraint(Sketcher.Constraint("DistanceX", 0, 2, -1, 1, Q("24 in")))
sketch17.addConstraint(Sketcher.Constraint("DistanceY", -1, 1, 0, 2, Q("32.25 in")))
pad17 = body17.newObject("PartDesign::Pad", "Pad016")
pad17.Profile = sketch17
pad17.Length = Q("0.75 in")
pad17.Reversed = True
body18 = doc.addObject("PartDesign::Body", "Body017")

sketch18 = body18.newObject("Sketcher::SketchObject", "Sketch017")
sketch18.AttachmentSupport = (doc.getObject("XZ_Plane017"), [""])
sketch18.MapMode = "FlatFace"
sketch18.AttachmentOffset = App.Placement(V(0, 0, -1.75 * 25.4), App.Rotation())
sketch18.addGeometry(Part.LineSegment(V(-610, 905, 0), V(-610, 994, 0)), False)
sketch18.addGeometry(Part.LineSegment(V(-610, 994, 0), V(610, 994, 0)), False)
sketch18.addGeometry(Part.LineSegment(V(610, 994, 0), V(610, 905, 0)), False)
sketch18.addGeometry(Part.LineSegment(V(610, 905, 0), V(-610, 905, 0)), False)
sketch18.addConstraint(Sketcher.Constraint("Coincident", 0, 2, 1, 1))
sketch18.addConstraint(Sketcher.Constraint("Coincident", 1, 2, 2, 1))
sketch18.addConstraint(Sketcher.Constraint("Coincident", 2, 2, 3, 1))
sketch18.addConstraint(Sketcher.Constraint("Coincident", 3, 2, 0, 1))
sketch18.addConstraint(Sketcher.Constraint("Vertical", 0))
sketch18.addConstraint(Sketcher.Constraint("Horizontal", 1))
sketch18.addConstraint(Sketcher.Constraint("Vertical", 2))
sketch18.addConstraint(Sketcher.Constraint("Horizontal", 3))
sketch18.addConstraint(Sketcher.Constraint("DistanceX", 1, 1, 1, 2, Q("48 in")))
sketch18.addConstraint(Sketcher.Constraint("DistanceY", 0, 1, 0, 2, Q("3.5 in")))
sketch18.addConstraint(Sketcher.Constraint("DistanceX", 0, 2, -1, 1, Q("24 in")))
sketch18.addConstraint(Sketcher.Constraint("DistanceY", -1, 1, 0, 2, Q("39.125 in")))
pad18 = body18.newObject("PartDesign::Pad", "Pad017")
pad18.Profile = sketch18
pad18.Length = Q("0.75 in")
pad18.Reversed = True
body19 = doc.addObject("PartDesign::Body", "Body018")

sketch19 = body19.newObject("Sketcher::SketchObject", "Sketch018")
sketch19.AttachmentSupport = (doc.getObject("XZ_Plane018"), [""])
sketch19.MapMode = "FlatFace"
sketch19.AttachmentOffset = App.Placement(V(0, 0, 1.75 * 25.4), App.Rotation())
sketch19.addGeometry(Part.LineSegment(V(-610, 1219, 0), V(-610, 1080, 0)), False)
sketch19.addGeometry(Part.LineSegment(V(-610, 1080, 0), V(610, 1080, 0)), False)
sketch19.addGeometry(Part.LineSegment(V(610, 1080, 0), V(610, 1219, 0)), False)
sketch19.addGeometry(Part.LineSegment(V(610, 1219, 0), V(-610, 1219, 0)), False)
sketch19.addConstraint(Sketcher.Constraint("Coincident", 0, 2, 1, 1))
sketch19.addConstraint(Sketcher.Constraint("Coincident", 1, 2, 2, 1))
sketch19.addConstraint(Sketcher.Constraint("Coincident", 2, 2, 3, 1))
sketch19.addConstraint(Sketcher.Constraint("Coincident", 3, 2, 0, 1))
sketch19.addConstraint(Sketcher.Constraint("Vertical", 0))
sketch19.addConstraint(Sketcher.Constraint("Horizontal", 1))
sketch19.addConstraint(Sketcher.Constraint("Vertical", 2))
sketch19.addConstraint(Sketcher.Constraint("Horizontal", 3))
sketch19.addConstraint(Sketcher.Constraint("DistanceX", 1, 1, 1, 2, Q("48 in")))
sketch19.addConstraint(Sketcher.Constraint("DistanceY", 0, 2, 0, 1, Q("5.5 in")))
sketch19.addConstraint(Sketcher.Constraint("DistanceX", 0, 2, -1, 1, Q("24 in")))
sketch19.addConstraint(Sketcher.Constraint("DistanceY", -1, 1, 2, 2, Q("48 in")))
pad19 = body19.newObject("PartDesign::Pad", "Pad018")
pad19.Profile = sketch19
pad19.Length = Q("0.75 in")
body20 = doc.addObject("PartDesign::Body", "Body019")

sketch20 = body20.newObject("Sketcher::SketchObject", "Sketch019")
sketch20.AttachmentSupport = (doc.getObject("XZ_Plane019"), [""])
sketch20.MapMode = "FlatFace"
sketch20.AttachmentOffset = App.Placement(V(0, 0, 1.75 * 25.4), App.Rotation())
sketch20.addGeometry(Part.LineSegment(V(-610, -1080, 0), V(-610, -1219, 0)), False)
sketch20.addGeometry(Part.LineSegment(V(-610, -1219, 0), V(610, -1219, 0)), False)
sketch20.addGeometry(Part.LineSegment(V(610, -1219, 0), V(610, -1080, 0)), False)
sketch20.addGeometry(Part.LineSegment(V(610, -1080, 0), V(-610, -1080, 0)), False)
sketch20.addConstraint(Sketcher.Constraint("Coincident", 0, 2, 1, 1))
sketch20.addConstraint(Sketcher.Constraint("Coincident", 1, 2, 2, 1))
sketch20.addConstraint(Sketcher.Constraint("Coincident", 2, 2, 3, 1))
sketch20.addConstraint(Sketcher.Constraint("Coincident", 3, 2, 0, 1))
sketch20.addConstraint(Sketcher.Constraint("Vertical", 0))
sketch20.addConstraint(Sketcher.Constraint("Horizontal", 1))
sketch20.addConstraint(Sketcher.Constraint("Vertical", 2))
sketch20.addConstraint(Sketcher.Constraint("Horizontal", 3))
sketch20.addConstraint(Sketcher.Constraint("DistanceX", 1, 1, 1, 2, Q("48 in")))
sketch20.addConstraint(Sketcher.Constraint("DistanceY", 0, 2, 0, 1, Q("5.5 in")))
sketch20.addConstraint(Sketcher.Constraint("DistanceX", 0, 2, -1, 1, Q("24 in")))
sketch20.addConstraint(Sketcher.Constraint("DistanceY", 0, 2, -1, 1, Q("48 in")))
pad20 = body20.newObject("PartDesign::Pad", "Pad019")
pad20.Profile = sketch20
pad20.Length = Q("0.75 in")
body21 = doc.addObject("PartDesign::Body", "Body020")

sketch21 = body21.newObject("Sketcher::SketchObject", "Sketch020")
sketch21.AttachmentSupport = (doc.getObject("XZ_Plane020"), [""])
sketch21.MapMode = "FlatFace"
sketch21.AttachmentOffset = App.Placement(V(0, 0, 1.75 * 25.4), App.Rotation())
sketch21.addGeometry(Part.LineSegment(V(-610, -140, 0), V(-610, -229, 0)), False)
sketch21.addGeometry(Part.LineSegment(V(-610, -229, 0), V(610, -229, 0)), False)
sketch21.addGeometry(Part.LineSegment(V(610, -229, 0), V(610, -140, 0)), False)
sketch21.addGeometry(Part.LineSegment(V(610, -140, 0), V(-610, -140, 0)), False)
sketch21.addConstraint(Sketcher.Constraint("Coincident", 0, 2, 1, 1))
sketch21.addConstraint(Sketcher.Constraint("Coincident", 1, 2, 2, 1))
sketch21.addConstraint(Sketcher.Constraint("Coincident", 2, 2, 3, 1))
sketch21.addConstraint(Sketcher.Constraint("Coincident", 3, 2, 0, 1))
sketch21.addConstraint(Sketcher.Constraint("Vertical", 0))
sketch21.addConstraint(Sketcher.Constraint("Horizontal", 1))
sketch21.addConstraint(Sketcher.Constraint("Vertical", 2))
sketch21.addConstraint(Sketcher.Constraint("Horizontal", 3))
sketch21.addConstraint(Sketcher.Constraint("DistanceX", 1, 1, 1, 2, Q("48 in")))
sketch21.addConstraint(Sketcher.Constraint("DistanceY", 0, 2, 0, 1, Q("3.5 in")))
sketch21.addConstraint(Sketcher.Constraint("DistanceX", 0, 2, -1, 1, Q("24 in")))
sketch21.addConstraint(Sketcher.Constraint("DistanceY", 0, 2, -1, 1, Q("9 in")))
pad21 = body21.newObject("PartDesign::Pad", "Pad020")
pad21.Profile = sketch21
pad21.Length = Q("0.75 in")
body22 = doc.addObject("PartDesign::Body", "Body021")

sketch22 = body22.newObject("Sketcher::SketchObject", "Sketch021")
sketch22.AttachmentSupport = (doc.getObject("XZ_Plane021"), [""])
sketch22.MapMode = "FlatFace"
sketch22.AttachmentOffset = App.Placement(V(0, 0, 1.75 * 25.4), App.Rotation())
sketch22.addGeometry(Part.LineSegment(V(-610, 546, 0), V(-610, 457, 0)), False)
sketch22.addGeometry(Part.LineSegment(V(-610, 457, 0), V(610, 457, 0)), False)
sketch22.addGeometry(Part.LineSegment(V(610, 457, 0), V(610, 546, 0)), False)
sketch22.addGeometry(Part.LineSegment(V(610, 546, 0), V(-610, 546, 0)), False)
sketch22.addConstraint(Sketcher.Constraint("Coincident", 0, 2, 1, 1))
sketch22.addConstraint(Sketcher.Constraint("Coincident", 1, 2, 2, 1))
sketch22.addConstraint(Sketcher.Constraint("Coincident", 2, 2, 3, 1))
sketch22.addConstraint(Sketcher.Constraint("Coincident", 3, 2, 0, 1))
sketch22.addConstraint(Sketcher.Constraint("Vertical", 0))
sketch22.addConstraint(Sketcher.Constraint("Horizontal", 1))
sketch22.addConstraint(Sketcher.Constraint("Vertical", 2))
sketch22.addConstraint(Sketcher.Constraint("Horizontal", 3))
sketch22.addConstraint(Sketcher.Constraint("DistanceX", 1, 1, 1, 2, Q("48 in")))
sketch22.addConstraint(Sketcher.Constraint("DistanceY", 0, 2, 0, 1, Q("3.5 in")))
sketch22.addConstraint(Sketcher.Constraint("DistanceX", 0, 2, -1, 1, Q("24 in")))
sketch22.addConstraint(Sketcher.Constraint("DistanceY", -1, 1, 0, 2, Q("18 in")))
pad22 = body22.newObject("PartDesign::Pad", "Pad021")
pad22.Profile = sketch22
pad22.Length = Q("0.75 in")
body23 = doc.addObject("PartDesign::Body", "Body022")

sketch23 = body23.newObject("Sketcher::SketchObject", "Sketch022")
sketch23.AttachmentSupport = (doc.getObject("XZ_Plane022"), [""])
sketch23.MapMode = "FlatFace"
sketch23.AttachmentOffset = App.Placement(V(0, 0, 1.75 * 25.4), App.Rotation())
sketch23.addGeometry(Part.LineSegment(V(-610, -457, 0), V(-610, -546, 0)), False)
sketch23.addGeometry(Part.LineSegment(V(-610, -546, 0), V(610, -546, 0)), False)
sketch23.addGeometry(Part.LineSegment(V(610, -546, 0), V(610, -457, 0)), False)
sketch23.addGeometry(Part.LineSegment(V(610, -457, 0), V(-610, -457, 0)), False)
sketch23.addConstraint(Sketcher.Constraint("Coincident", 0, 2, 1, 1))
sketch23.addConstraint(Sketcher.Constraint("Coincident", 1, 2, 2, 1))
sketch23.addConstraint(Sketcher.Constraint("Coincident", 2, 2, 3, 1))
sketch23.addConstraint(Sketcher.Constraint("Coincident", 3, 2, 0, 1))
sketch23.addConstraint(Sketcher.Constraint("Vertical", 0))
sketch23.addConstraint(Sketcher.Constraint("Horizontal", 1))
sketch23.addConstraint(Sketcher.Constraint("Vertical", 2))
sketch23.addConstraint(Sketcher.Constraint("Horizontal", 3))
sketch23.addConstraint(Sketcher.Constraint("DistanceX", 1, 1, 1, 2, Q("48 in")))
sketch23.addConstraint(Sketcher.Constraint("DistanceY", 0, 2, 0, 1, Q("3.5 in")))
sketch23.addConstraint(Sketcher.Constraint("DistanceX", 0, 2, -1, 1, Q("24 in")))
sketch23.addConstraint(Sketcher.Constraint("DistanceY", 2, 2, -1, 1, Q("18 in")))
pad23 = body23.newObject("PartDesign::Pad", "Pad022")
pad23.Profile = sketch23
pad23.Length = Q("0.75 in")
body24 = doc.addObject("PartDesign::Body", "Body023")

sketch24 = body24.newObject("Sketcher::SketchObject", "Sketch023")
sketch24.AttachmentSupport = (doc.getObject("XZ_Plane023"), [""])
sketch24.MapMode = "FlatFace"
sketch24.AttachmentOffset = App.Placement(V(0, 0, 1.75 * 25.4), App.Rotation())
sketch24.addGeometry(Part.LineSegment(V(-610, 229, 0), V(-610, 140, 0)), False)
sketch24.addGeometry(Part.LineSegment(V(-610, 140, 0), V(610, 140, 0)), False)
sketch24.addGeometry(Part.LineSegment(V(610, 140, 0), V(610, 229, 0)), False)
sketch24.addGeometry(Part.LineSegment(V(610, 229, 0), V(-610, 229, 0)), False)
sketch24.addConstraint(Sketcher.Constraint("Coincident", 0, 2, 1, 1))
sketch24.addConstraint(Sketcher.Constraint("Coincident", 1, 2, 2, 1))
sketch24.addConstraint(Sketcher.Constraint("Coincident", 2, 2, 3, 1))
sketch24.addConstraint(Sketcher.Constraint("Coincident", 3, 2, 0, 1))
sketch24.addConstraint(Sketcher.Constraint("Vertical", 0))
sketch24.addConstraint(Sketcher.Constraint("Horizontal", 1))
sketch24.addConstraint(Sketcher.Constraint("Vertical", 2))
sketch24.addConstraint(Sketcher.Constraint("Horizontal", 3))
sketch24.addConstraint(Sketcher.Constraint("DistanceX", 1, 1, 1, 2, Q("48 in")))
sketch24.addConstraint(Sketcher.Constraint("DistanceY", 0, 2, 0, 1, Q("3.5 in")))
sketch24.addConstraint(Sketcher.Constraint("DistanceX", 0, 2, -1, 1, Q("24 in")))
sketch24.addConstraint(Sketcher.Constraint("DistanceY", -1, 1, 2, 2, Q("9 in")))
pad24 = body24.newObject("PartDesign::Pad", "Pad023")
pad24.Profile = sketch24
pad24.Length = Q("0.75 in")
body25 = doc.addObject("PartDesign::Body", "Body024")
body25.AllowCompound = True

sketch25 = body25.newObject("Sketcher::SketchObject", "Sketch024")
sketch25.AttachmentSupport = (doc.getObject("YZ_Plane024"), [""])
sketch25.MapMode = "FlatFace"
sketch25.AttachmentOffset = App.Placement(V(0, 0, 24 * 25.4), App.Rotation())
sketch25.addGeometry(Part.LineSegment(V(-44, 457, 0), V(-44, 229, 0)), False)
sketch25.addGeometry(Part.LineSegment(V(-44, 229, 0), V(-25, 229, 0)), False)
sketch25.addGeometry(Part.ArcOfCircle(Part.Circle(V(-25, 248, 0), V(0, 0, 1), 19), math.radians(-90), math.radians(0)), False)
sketch25.addGeometry(Part.LineSegment(V(-6, 248, 0), V(-6, 438, 0)), False)
sketch25.addGeometry(Part.ArcOfCircle(Part.Circle(V(-25, 438, 0), V(0, 0, 1), 19), math.radians(0), math.radians(90)), False)
sketch25.addGeometry(Part.LineSegment(V(-25, 457, 0), V(-44, 457, 0)), False)
sketch25.addGeometry(Part.LineSegment(V(-44, -229, 0), V(-44, -457, 0)), False)
sketch25.addGeometry(Part.LineSegment(V(-44, -457, 0), V(-25, -457, 0)), False)
sketch25.addGeometry(Part.ArcOfCircle(Part.Circle(V(-25, -438, 0), V(0, 0, 1), 19), math.radians(-90), math.radians(0)), False)
sketch25.addGeometry(Part.LineSegment(V(-6, -438, 0), V(-6, -248, 0)), False)
sketch25.addGeometry(Part.ArcOfCircle(Part.Circle(V(-25, -248, 0), V(0, 0, 1), 19), math.radians(0), math.radians(90)), False)
sketch25.addGeometry(Part.LineSegment(V(-25, -229, 0), V(-44, -229, 0)), False)
sketch25.addConstraint(Sketcher.Constraint("Coincident", 0, 2, 1, 1))
sketch25.addConstraint(Sketcher.Constraint("Tangent", 1, 2, 2, 1))
sketch25.addConstraint(Sketcher.Constraint("Tangent", 2, 2, 3, 1))
sketch25.addConstraint(Sketcher.Constraint("Tangent", 3, 2, 4, 1))
sketch25.addConstraint(Sketcher.Constraint("Tangent", 4, 2, 5, 1))
sketch25.addConstraint(Sketcher.Constraint("Coincident", 5, 2, 0, 1))
sketch25.addConstraint(Sketcher.Constraint("Coincident", 6, 2, 7, 1))
sketch25.addConstraint(Sketcher.Constraint("Tangent", 7, 2, 8, 1))
sketch25.addConstraint(Sketcher.Constraint("Tangent", 8, 2, 9, 1))
sketch25.addConstraint(Sketcher.Constraint("Tangent", 9, 2, 10, 1))
sketch25.addConstraint(Sketcher.Constraint("Tangent", 10, 2, 11, 1))
sketch25.addConstraint(Sketcher.Constraint("Coincident", 11, 2, 6, 1))
sketch25.addConstraint(Sketcher.Constraint("Vertical", 0))
sketch25.addConstraint(Sketcher.Constraint("Horizontal", 1))
sketch25.addConstraint(Sketcher.Constraint("Vertical", 3))
sketch25.addConstraint(Sketcher.Constraint("Horizontal", 5))
sketch25.addConstraint(Sketcher.Constraint("Vertical", 6))
sketch25.addConstraint(Sketcher.Constraint("Horizontal", 7))
sketch25.addConstraint(Sketcher.Constraint("Vertical", 9))
sketch25.addConstraint(Sketcher.Constraint("Horizontal", 11))
sketch25.addConstraint(Sketcher.Constraint("Equal", 2, 4))
sketch25.addConstraint(Sketcher.Constraint("Equal", 4, 8))
sketch25.addConstraint(Sketcher.Constraint("Equal", 8, 10))
sketch25.addConstraint(Sketcher.Constraint("Symmetric", 4, 3, 8, 3, -1))
sketch25.addConstraint(Sketcher.Constraint("Symmetric", 0, 2, 11, 2, -1))
sketch25.addConstraint(Sketcher.Constraint("DistanceY", 0, 2, 0, 1, Q("9 in")))
sketch25.addConstraint(Sketcher.Constraint("Radius", 2, Q("0.75 in")))
sketch25.addConstraint(Sketcher.Constraint("DistanceX", 2, 3, -1, 1, Q("1 in")))
sketch25.addConstraint(Sketcher.Constraint("DistanceY", -1, 1, 0, 2, Q("9 in")))
sketch25.addConstraint(Sketcher.Constraint("DistanceX", 1, 1, 1, 2, Q("0.75 in")))
pad25 = body25.newObject("PartDesign::Pad", "Pad024")
pad25.Profile = sketch25
pad25.Type = "TwoLengths"
pad25.Length = 1726.378083
pad25.Length2 = 1726.378083
doc.recompute()

body26 = doc.addObject("PartDesign::Body", "Body025")
body26.BaseFeature = body25
boolean = body.newObject("PartDesign::Boolean", "Boolean")
boolean.Type = "Cut"
boolean.addObjects([body26])
doc.recompute()

body27 = doc.addObject("PartDesign::Body", "Body026")
body27.BaseFeature = body25
boolean2 = body2.newObject("PartDesign::Boolean", "Boolean001")
boolean2.Type = "Cut"
boolean2.addObjects([body27])
doc.recompute()

body28 = doc.addObject("PartDesign::Body", "Body027")
body28.BaseFeature = body25
boolean3 = body3.newObject("PartDesign::Boolean", "Boolean002")
boolean3.Type = "Cut"
boolean3.addObjects([body28])
doc.recompute()

body29 = doc.addObject("PartDesign::Body", "Body028")
body29.BaseFeature = body25
boolean4 = body4.newObject("PartDesign::Boolean", "Boolean003")
boolean4.Type = "Cut"
boolean4.addObjects([body29])
doc.recompute()

boolean5 = body5.newObject("PartDesign::Boolean", "Boolean004")
boolean5.Type = "Cut"
boolean5.addObjects([body25])

doc.recompute()
